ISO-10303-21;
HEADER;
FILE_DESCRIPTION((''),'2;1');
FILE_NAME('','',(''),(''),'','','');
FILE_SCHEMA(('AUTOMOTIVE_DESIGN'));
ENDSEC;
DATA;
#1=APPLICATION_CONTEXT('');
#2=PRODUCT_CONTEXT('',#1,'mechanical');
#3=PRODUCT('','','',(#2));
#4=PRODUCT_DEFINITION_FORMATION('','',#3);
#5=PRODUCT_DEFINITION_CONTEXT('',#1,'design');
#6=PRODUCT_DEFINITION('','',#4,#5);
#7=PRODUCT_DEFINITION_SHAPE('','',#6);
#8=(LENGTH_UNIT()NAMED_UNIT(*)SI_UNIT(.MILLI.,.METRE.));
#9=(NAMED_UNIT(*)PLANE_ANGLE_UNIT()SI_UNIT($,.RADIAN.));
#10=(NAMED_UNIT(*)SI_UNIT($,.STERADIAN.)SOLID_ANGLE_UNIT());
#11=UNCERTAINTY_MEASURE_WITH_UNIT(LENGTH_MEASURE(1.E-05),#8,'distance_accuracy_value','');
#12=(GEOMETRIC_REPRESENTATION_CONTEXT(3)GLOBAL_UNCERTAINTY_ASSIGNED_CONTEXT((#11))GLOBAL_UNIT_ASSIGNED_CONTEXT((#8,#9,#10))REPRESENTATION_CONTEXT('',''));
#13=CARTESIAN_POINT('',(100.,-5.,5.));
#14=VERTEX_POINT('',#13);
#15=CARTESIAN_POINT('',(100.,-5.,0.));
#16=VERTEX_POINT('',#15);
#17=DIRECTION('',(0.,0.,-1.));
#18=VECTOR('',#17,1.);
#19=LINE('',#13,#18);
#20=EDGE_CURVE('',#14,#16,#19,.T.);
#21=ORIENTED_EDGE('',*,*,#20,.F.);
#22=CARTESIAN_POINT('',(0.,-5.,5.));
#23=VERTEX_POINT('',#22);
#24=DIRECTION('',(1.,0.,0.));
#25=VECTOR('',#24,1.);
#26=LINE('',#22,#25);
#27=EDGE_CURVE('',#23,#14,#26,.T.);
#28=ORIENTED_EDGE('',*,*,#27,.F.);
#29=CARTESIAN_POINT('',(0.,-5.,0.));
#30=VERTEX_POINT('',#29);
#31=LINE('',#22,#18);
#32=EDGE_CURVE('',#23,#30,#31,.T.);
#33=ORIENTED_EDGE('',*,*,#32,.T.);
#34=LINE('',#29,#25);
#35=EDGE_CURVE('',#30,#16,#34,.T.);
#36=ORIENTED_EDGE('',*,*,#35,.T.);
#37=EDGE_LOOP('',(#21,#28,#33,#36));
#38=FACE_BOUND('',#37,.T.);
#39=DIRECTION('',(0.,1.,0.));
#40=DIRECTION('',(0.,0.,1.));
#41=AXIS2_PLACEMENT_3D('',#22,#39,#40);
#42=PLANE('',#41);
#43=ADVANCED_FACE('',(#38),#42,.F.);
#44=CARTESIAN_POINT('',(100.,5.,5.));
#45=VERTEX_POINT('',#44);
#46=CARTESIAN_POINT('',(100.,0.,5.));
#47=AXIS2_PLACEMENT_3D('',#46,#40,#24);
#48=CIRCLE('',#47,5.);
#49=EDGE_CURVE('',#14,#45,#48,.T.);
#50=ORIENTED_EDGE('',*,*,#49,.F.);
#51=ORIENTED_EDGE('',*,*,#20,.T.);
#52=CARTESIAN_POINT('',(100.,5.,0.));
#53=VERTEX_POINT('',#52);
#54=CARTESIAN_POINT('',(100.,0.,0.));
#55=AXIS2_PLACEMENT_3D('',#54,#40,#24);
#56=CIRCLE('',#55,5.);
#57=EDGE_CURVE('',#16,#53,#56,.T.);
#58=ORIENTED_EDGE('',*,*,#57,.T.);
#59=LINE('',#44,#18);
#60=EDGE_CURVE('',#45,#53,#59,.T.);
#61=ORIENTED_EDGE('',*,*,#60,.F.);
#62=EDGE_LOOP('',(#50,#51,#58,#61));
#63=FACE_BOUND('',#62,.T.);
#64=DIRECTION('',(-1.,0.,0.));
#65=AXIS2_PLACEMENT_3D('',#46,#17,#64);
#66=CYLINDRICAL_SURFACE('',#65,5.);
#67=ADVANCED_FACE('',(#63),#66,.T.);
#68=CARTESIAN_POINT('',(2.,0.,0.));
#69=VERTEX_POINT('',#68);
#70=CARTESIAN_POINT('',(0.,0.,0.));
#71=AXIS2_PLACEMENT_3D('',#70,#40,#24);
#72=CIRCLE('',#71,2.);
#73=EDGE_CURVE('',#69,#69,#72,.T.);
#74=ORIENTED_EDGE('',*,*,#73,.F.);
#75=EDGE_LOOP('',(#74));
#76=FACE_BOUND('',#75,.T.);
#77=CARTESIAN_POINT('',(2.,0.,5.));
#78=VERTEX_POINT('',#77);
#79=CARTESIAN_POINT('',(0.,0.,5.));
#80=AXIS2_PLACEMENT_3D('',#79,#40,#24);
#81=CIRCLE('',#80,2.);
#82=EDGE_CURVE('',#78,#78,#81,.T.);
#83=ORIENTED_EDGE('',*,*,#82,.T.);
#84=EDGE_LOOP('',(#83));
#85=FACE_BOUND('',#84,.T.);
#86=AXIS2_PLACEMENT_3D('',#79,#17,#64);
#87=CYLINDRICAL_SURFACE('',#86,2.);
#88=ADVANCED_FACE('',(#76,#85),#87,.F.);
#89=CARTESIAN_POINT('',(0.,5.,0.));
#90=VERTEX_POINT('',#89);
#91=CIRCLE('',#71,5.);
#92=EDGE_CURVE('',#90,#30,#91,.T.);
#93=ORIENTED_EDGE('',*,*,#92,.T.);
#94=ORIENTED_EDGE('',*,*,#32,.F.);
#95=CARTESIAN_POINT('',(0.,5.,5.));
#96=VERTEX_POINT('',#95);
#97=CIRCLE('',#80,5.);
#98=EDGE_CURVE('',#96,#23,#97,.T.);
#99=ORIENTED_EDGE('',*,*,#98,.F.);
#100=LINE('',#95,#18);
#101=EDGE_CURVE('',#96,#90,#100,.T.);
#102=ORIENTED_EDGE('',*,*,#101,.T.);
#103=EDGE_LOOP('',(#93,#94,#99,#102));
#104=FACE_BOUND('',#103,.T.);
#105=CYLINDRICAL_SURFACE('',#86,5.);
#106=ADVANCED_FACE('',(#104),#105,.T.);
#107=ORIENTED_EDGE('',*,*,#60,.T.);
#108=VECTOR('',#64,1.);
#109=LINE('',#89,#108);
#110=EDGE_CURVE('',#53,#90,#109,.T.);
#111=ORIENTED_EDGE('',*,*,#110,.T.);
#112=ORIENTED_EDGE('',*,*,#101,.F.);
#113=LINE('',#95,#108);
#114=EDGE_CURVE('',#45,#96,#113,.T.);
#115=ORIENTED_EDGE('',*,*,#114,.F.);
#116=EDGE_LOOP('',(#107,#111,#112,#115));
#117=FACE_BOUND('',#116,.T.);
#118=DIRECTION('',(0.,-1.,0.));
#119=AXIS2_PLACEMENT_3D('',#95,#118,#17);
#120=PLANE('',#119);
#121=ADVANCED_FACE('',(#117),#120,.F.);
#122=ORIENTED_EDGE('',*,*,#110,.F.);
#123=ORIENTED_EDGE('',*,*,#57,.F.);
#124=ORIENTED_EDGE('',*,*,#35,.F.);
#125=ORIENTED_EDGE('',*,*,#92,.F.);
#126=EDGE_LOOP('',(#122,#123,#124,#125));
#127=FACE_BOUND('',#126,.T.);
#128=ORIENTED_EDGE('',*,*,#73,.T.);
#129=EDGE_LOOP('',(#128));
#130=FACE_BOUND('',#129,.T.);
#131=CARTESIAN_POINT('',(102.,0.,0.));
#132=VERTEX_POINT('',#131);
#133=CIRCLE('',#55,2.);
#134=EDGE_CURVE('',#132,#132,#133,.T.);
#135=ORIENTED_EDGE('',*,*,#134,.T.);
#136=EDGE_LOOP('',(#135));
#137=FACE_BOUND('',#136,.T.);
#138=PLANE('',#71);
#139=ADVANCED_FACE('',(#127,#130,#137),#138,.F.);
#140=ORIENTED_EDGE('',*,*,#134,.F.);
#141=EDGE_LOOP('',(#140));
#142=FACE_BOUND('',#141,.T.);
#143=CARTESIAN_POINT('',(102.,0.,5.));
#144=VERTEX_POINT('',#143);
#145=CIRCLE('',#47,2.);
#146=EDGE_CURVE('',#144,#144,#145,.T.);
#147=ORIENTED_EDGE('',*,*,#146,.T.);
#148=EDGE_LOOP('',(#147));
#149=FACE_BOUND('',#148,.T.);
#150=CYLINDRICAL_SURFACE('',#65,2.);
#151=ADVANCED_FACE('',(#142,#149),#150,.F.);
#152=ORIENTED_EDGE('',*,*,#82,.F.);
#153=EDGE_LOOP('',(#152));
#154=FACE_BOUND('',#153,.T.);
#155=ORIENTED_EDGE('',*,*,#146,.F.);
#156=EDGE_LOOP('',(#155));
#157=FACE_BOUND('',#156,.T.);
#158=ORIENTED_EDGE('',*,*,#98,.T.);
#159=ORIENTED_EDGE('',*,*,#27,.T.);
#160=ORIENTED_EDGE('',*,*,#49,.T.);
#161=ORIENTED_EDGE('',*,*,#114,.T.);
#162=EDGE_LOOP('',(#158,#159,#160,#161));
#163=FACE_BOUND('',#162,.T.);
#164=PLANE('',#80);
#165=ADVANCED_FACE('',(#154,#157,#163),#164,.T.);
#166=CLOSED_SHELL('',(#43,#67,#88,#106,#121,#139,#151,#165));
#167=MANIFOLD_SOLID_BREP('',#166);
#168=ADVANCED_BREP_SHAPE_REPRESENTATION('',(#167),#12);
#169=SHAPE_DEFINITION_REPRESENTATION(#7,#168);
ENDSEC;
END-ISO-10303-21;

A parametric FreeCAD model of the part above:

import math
import FreeCAD as App
import Part
import Sketcher
from FreeCAD import Vector

doc = App.newDocument("Part")
params = doc.addObject("Spreadsheet::Sheet", "Params")
for row, (alias, value) in enumerate([
    ("sketch1_diameter", "4 mm"),
    ("sketch1_radius", "5 mm"),
    ("sketch1_width", "100 mm"),
    ("pad1_length", "5 mm"),
], start=1):
    params.set(f"A{row}", alias)
    params.set(f"B{row}", "=" + value)
    params.setAlias(f"B{row}", alias)

body = doc.addObject("PartDesign::Body", "Body")

# Sketch on XY plane
sketch1 = doc.addObject("Sketcher::SketchObject", "Sketch")
body.addObject(sketch1)
sketch1.AttachmentSupport = (doc.XY_Plane, [""])
sketch1.MapMode = "FlatFace"
sketch1.addGeometry([
    Part.LineSegment(Vector(100, 5, 0), Vector(0, 5, 0)),  # 0
    Part.ArcOfCircle(Part.Circle(Vector(0, 0, 0), Vector(0, 0, 1), 5), math.radians(90), math.radians(270)),  # 1
    Part.LineSegment(Vector(0, -5, 0), Vector(100, -5, 0)),  # 2
    Part.ArcOfCircle(Part.Circle(Vector(100, 0, 0), Vector(0, 0, 1), 5), math.radians(-90), math.radians(90)),  # 3
    Part.Circle(Vector(100, 0, 0), Vector(0, 0, 1), 2),  # 4
    Part.Circle(Vector(0, 0, 0), Vector(0, 0, 1), 2),  # 5
], False)
sketch1.addConstraint([
    Sketcher.Constraint("Tangent", 0, 2, 1, 1),
    Sketcher.Constraint("Tangent", 1, 2, 2, 1),
    Sketcher.Constraint("Tangent", 2, 2, 3, 1),
    Sketcher.Constraint("Tangent", 3, 2, 0, 1),
    Sketcher.Constraint("Horizontal", 0),
    Sketcher.Constraint("Horizontal", 2),
    Sketcher.Constraint("Coincident", 1, 3, -1, 1),
    Sketcher.Constraint("Coincident", 5, 3, -1, 1),
    Sketcher.Constraint("Coincident", 4, 3, 3, 3),
    Sketcher.Constraint("Equal", 4, 5),
    Sketcher.Constraint("Diameter", 4, 4.0),
    Sketcher.Constraint("Radius", 1, 5.0),
    Sketcher.Constraint("DistanceX", 0, 2, 0, 1, 100.0),
])
sketch1.setExpression("Constraints[10]", "Params.sketch1_diameter")
sketch1.setExpression("Constraints[11]", "Params.sketch1_radius")
sketch1.setExpression("Constraints[12]", "Params.sketch1_width")
pad1 = doc.addObject("PartDesign::Pad", "Pad")
body.addObject(pad1)
pad1.Profile = sketch1
pad1.setExpression("Length", "Params.pad1_length")

doc.recompute()
